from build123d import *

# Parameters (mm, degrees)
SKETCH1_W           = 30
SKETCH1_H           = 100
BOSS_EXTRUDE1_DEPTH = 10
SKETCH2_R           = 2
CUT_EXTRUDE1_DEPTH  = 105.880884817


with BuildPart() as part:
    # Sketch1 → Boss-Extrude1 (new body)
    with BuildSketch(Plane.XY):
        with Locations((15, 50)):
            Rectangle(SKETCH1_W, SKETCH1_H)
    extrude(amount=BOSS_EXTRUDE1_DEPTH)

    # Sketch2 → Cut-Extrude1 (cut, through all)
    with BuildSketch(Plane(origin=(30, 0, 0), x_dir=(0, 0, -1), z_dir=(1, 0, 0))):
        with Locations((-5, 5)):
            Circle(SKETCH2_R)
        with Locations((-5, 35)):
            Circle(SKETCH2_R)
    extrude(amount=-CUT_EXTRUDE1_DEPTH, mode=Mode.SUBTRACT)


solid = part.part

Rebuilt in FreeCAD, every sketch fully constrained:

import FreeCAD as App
import Part
import Sketcher
Q = App.Units.Quantity

doc = App.newDocument("Part")
body = doc.addObject("PartDesign::Body", "Body")

sketch1 = body.newObject("Sketcher::SketchObject", "Sketch")
sketch1.AttachmentSupport = (doc.getObject("XY_Plane"), [""])
sketch1.MapMode = "FlatFace"
sketch1.addGeometry([
    Part.LineSegment(App.Vector(0, 100, 0), App.Vector(0, 0, 0)),
    Part.LineSegment(App.Vector(0, 0, 0), App.Vector(30, 0, 0)),
    Part.LineSegment(App.Vector(30, 0, 0), App.Vector(30, 100, 0)),
    Part.LineSegment(App.Vector(30, 100, 0), App.Vector(0, 100, 0)),
], False)
sketch1.addConstraint([
    Sketcher.Constraint("Coincident", 0, 2, 1, 1),
    Sketcher.Constraint("Coincident", 1, 2, 2, 1),
    Sketcher.Constraint("Coincident", 2, 2, 3, 1),
    Sketcher.Constraint("Coincident", 3, 2, 0, 1),
    Sketcher.Constraint("Vertical", 0),
    Sketcher.Constraint("Horizontal", 1),
    Sketcher.Constraint("Vertical", 2),
    Sketcher.Constraint("Horizontal", 3),
    Sketcher.Constraint("Coincident", 0, 2, -1, 1),
    Sketcher.Constraint("DistanceX", 1, 1, 1, 2, Q("30 mm")),
    Sketcher.Constraint("DistanceY", 0, 2, 0, 1, Q("100 mm")),
])
pad1 = body.newObject("PartDesign::Pad", "Pad")
pad1.Profile = sketch1
pad1.Length = 10

sketch2 = body.newObject("Sketcher::SketchObject", "Sketch001")
sketch2.AttachmentSupport = (doc.getObject("YZ_Plane"), [""])
sketch2.MapMode = "FlatFace"
sketch2.AttachmentOffset = App.Placement(App.Vector(0, 0, 30), App.Rotation())
sketch2.addGeometry([
    Part.Circle(App.Vector(5, 5, 0), App.Vector(0, 0, 1), 2),
    Part.Circle(App.Vector(35, 5, 0), App.Vector(0, 0, 1), 2),
], False)
sketch2.addConstraint([
    Sketcher.Constraint("Equal", 0, 1),
    Sketcher.Constraint("Horizontal", 0, 3, 1, 3),
    Sketcher.Constraint("Diameter", 0, Q("4 mm")),
    Sketcher.Constraint("DistanceX", -1, 1, 0, 3, Q("5 mm")),
    Sketcher.Constraint("DistanceY", -1, 1, 0, 3, Q("5 mm")),
    Sketcher.Constraint("DistanceX", -1, 1, 1, 3, Q("35 mm")),
])
pocket1 = body.newObject("PartDesign::Pocket", "Pocket")
pocket1.Profile = sketch2
pocket1.Type = "ThroughAll"

doc.recompute()
